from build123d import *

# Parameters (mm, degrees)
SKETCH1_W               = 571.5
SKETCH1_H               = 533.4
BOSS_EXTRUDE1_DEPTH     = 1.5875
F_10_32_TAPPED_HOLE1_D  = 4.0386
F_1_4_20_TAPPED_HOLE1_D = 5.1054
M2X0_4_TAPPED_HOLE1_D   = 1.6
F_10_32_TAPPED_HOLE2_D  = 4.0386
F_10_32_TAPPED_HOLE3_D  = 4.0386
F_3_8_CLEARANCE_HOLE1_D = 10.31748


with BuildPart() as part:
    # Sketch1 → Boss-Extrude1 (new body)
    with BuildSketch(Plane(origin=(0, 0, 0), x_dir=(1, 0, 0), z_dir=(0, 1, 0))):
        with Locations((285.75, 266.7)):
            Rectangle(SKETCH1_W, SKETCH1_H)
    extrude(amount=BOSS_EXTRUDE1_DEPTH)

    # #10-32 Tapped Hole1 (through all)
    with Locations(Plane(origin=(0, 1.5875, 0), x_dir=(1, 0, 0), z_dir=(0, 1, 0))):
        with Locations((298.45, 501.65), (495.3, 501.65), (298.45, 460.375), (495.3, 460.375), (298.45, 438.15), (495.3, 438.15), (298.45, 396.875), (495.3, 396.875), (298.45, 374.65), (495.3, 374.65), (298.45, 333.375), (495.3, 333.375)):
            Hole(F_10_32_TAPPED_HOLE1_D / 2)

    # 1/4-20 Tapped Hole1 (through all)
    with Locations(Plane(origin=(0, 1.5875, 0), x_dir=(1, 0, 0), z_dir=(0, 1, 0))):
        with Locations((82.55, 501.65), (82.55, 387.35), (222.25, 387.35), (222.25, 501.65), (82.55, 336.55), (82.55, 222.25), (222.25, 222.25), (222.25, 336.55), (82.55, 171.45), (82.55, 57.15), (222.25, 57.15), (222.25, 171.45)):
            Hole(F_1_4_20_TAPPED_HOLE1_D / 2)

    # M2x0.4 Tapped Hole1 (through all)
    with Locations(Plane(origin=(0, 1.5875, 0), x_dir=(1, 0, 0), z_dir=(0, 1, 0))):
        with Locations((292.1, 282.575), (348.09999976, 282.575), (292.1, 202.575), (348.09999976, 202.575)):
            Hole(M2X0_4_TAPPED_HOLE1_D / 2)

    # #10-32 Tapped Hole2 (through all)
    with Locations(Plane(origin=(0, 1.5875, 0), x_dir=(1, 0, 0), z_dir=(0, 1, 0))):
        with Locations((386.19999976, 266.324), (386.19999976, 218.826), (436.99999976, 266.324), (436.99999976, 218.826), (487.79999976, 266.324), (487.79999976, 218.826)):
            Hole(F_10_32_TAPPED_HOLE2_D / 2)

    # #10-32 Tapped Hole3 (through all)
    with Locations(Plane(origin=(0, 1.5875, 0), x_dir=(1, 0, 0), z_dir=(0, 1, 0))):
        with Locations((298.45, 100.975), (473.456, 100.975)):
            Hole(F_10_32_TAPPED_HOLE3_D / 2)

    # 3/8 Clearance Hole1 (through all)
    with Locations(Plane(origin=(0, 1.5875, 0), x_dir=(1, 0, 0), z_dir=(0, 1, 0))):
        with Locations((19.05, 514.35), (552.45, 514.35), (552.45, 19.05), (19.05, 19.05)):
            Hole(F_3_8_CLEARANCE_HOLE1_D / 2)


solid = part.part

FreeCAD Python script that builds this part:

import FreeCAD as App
import Part
import Sketcher

V = App.Vector
Q = App.Units.Quantity


def add_polygon(sketch, points):
    """Adds a closed chain of lines whose ends are joined by coincident constraints."""
    first, n = sketch.GeometryCount, len(points)
    for a, b in zip(points, points[1:] + points[:1]):
        sketch.addGeometry(Part.LineSegment(App.Vector(*a, 0), App.Vector(*b, 0)), False)
    for i in range(n):
        sketch.addConstraint(Sketcher.Constraint("Coincident", first + i, 2, first + (i + 1) % n, 1))

doc = App.newDocument("Part")
body = doc.addObject("PartDesign::Body", "Body")

# Sketch on XZ plane
sketch1 = doc.addObject("Sketcher::SketchObject", "Sketch")
body.addObject(sketch1)
sketch1.AttachmentSupport = (doc.XZ_Plane, [""])
sketch1.MapMode = "FlatFace"
add_polygon(sketch1, [(0, -533), (0, 0), (572, 0), (572, -533)])  # lines 0-3
sketch1.addConstraint([
    Sketcher.Constraint("Vertical", 0),
    Sketcher.Constraint("Horizontal", 1),
    Sketcher.Constraint("Vertical", 2),
    Sketcher.Constraint("Horizontal", 3),
    Sketcher.Constraint("Coincident", 0, 2, -1, 1),
    Sketcher.Constraint("DistanceY", 0, 1, 0, 2, Q("21 in")),
    Sketcher.Constraint("DistanceX", 1, 1, 1, 2, Q("22.5 in")),
])
pad1 = doc.addObject("PartDesign::Pad", "Pad")
body.addObject(pad1)
pad1.Profile = sketch1
pad1.Length = Q("0.0625 in")
pad1.Reversed = True

# Sketch on XZ plane
sketch2 = doc.addObject("Sketcher::SketchObject", "Sketch001")
body.addObject(sketch2)
sketch2.AttachmentSupport = (doc.XZ_Plane, [""])
sketch2.MapMode = "FlatFace"
sketch2.AttachmentOffset = App.Placement(V(0, 0, -0.0625 * 25.4), App.Rotation())
sketch2.addGeometry([
    Part.Circle(V(298.4, -501.6, 0), V(0, 0, 1), 2),  # 0
    Part.Circle(V(495.3, -501.6, 0), V(0, 0, 1), 2),  # 1
    Part.Circle(V(298.4, -460.4, 0), V(0, 0, 1), 2),  # 2
    Part.Circle(V(495.3, -460.4, 0), V(0, 0, 1), 2),  # 3
    Part.Circle(V(298.4, -438.1, 0), V(0, 0, 1), 2),  # 4
    Part.Circle(V(495.3, -438.1, 0), V(0, 0, 1), 2),  # 5
    Part.Circle(V(298.4, -396.9, 0), V(0, 0, 1), 2),  # 6
    Part.Circle(V(495.3, -396.9, 0), V(0, 0, 1), 2),  # 7
    Part.Circle(V(298.4, -374.6, 0), V(0, 0, 1), 2),  # 8
    Part.Circle(V(495.3, -374.6, 0), V(0, 0, 1), 2),  # 9
    Part.Circle(V(298.4, -333.4, 0), V(0, 0, 1), 2),  # 10
    Part.Circle(V(495.3, -333.4, 0), V(0, 0, 1), 2),  # 11
], False)
sketch2.addConstraint([
    Sketcher.Constraint("Equal", 0, 1),
    Sketcher.Constraint("Equal", 1, 2),
    Sketcher.Constraint("Equal", 2, 3),
    Sketcher.Constraint("Equal", 3, 4),
    Sketcher.Constraint("Equal", 4, 5),
    Sketcher.Constraint("Equal", 5, 6),
    Sketcher.Constraint("Equal", 6, 7),
    Sketcher.Constraint("Equal", 7, 8),
    Sketcher.Constraint("Equal", 8, 9),
    Sketcher.Constraint("Equal", 9, 10),
    Sketcher.Constraint("Equal", 10, 11),
    Sketcher.Constraint("Horizontal", 0, 3, 1, 3),
    Sketcher.Constraint("Horizontal", 2, 3, 3, 3),
    Sketcher.Constraint("Horizontal", 4, 3, 5, 3),
    Sketcher.Constraint("Horizontal", 6, 3, 7, 3),
    Sketcher.Constraint("Horizontal", 8, 3, 9, 3),
    Sketcher.Constraint("Horizontal", 10, 3, 11, 3),
    Sketcher.Constraint("Vertical", 0, 3, 2, 3),
    Sketcher.Constraint("Vertical", 1, 3, 3, 3),
    Sketcher.Constraint("Vertical", 2, 3, 4, 3),
    Sketcher.Constraint("Vertical", 3, 3, 5, 3),
    Sketcher.Constraint("Vertical", 4, 3, 6, 3),
    Sketcher.Constraint("Vertical", 5, 3, 7, 3),
    Sketcher.Constraint("Vertical", 6, 3, 8, 3),
    Sketcher.Constraint("Vertical", 7, 3, 9, 3),
    Sketcher.Constraint("Vertical", 8, 3, 10, 3),
    Sketcher.Constraint("Vertical", 9, 3, 11, 3),
    Sketcher.Constraint("Diameter", 0, Q("0.159 in")),
    Sketcher.Constraint("DistanceY", 0, 3, 8, 3, Q("5 in")),
    Sketcher.Constraint("DistanceY", 2, 3, 10, 3, Q("5 in")),
    Sketcher.Constraint("DistanceX", -1, 1, 1, 3, Q("19.5 in")),
    Sketcher.Constraint("DistanceY", 0, 3, 4, 3, Q("2.5 in")),
    Sketcher.Constraint("DistanceY", 2, 3, 6, 3, Q("2.5 in")),
    Sketcher.Constraint("DistanceX", -1, 1, 0, 3, Q("11.75 in")),
    Sketcher.Constraint("DistanceY", 0, 3, -1, 1, Q("19.75 in")),
    Sketcher.Constraint("DistanceY", 2, 3, -1, 1, Q("18.125 in")),
])
doc.recompute()
hole = doc.addObject("PartDesign::Hole", "Hole")
body.addObject(hole)
hole.Profile = sketch2
hole.ThreadType = "None"
hole.Diameter = Q("0.159 in")
hole.DepthType = "ThroughAll"
hole.Reversed = True

# Sketch on XZ plane
sketch3 = doc.addObject("Sketcher::SketchObject", "Sketch002")
body.addObject(sketch3)
sketch3.AttachmentSupport = (doc.XZ_Plane, [""])
sketch3.MapMode = "FlatFace"
sketch3.AttachmentOffset = App.Placement(V(0, 0, -0.0625 * 25.4), App.Rotation())
sketch3.addGeometry([
    Part.Circle(V(82.5, -501.6, 0), V(0, 0, 1), 2.6),  # 0
    Part.Circle(V(82.5, -387.4, 0), V(0, 0, 1), 2.6),  # 1
    Part.Circle(V(222.2, -387.4, 0), V(0, 0, 1), 2.6),  # 2
    Part.Circle(V(222.2, -501.6, 0), V(0, 0, 1), 2.6),  # 3
    Part.Circle(V(82.5, -336.6, 0), V(0, 0, 1), 2.6),  # 4
    Part.Circle(V(82.5, -222.2, 0), V(0, 0, 1), 2.6),  # 5
    Part.Circle(V(222.2, -222.2, 0), V(0, 0, 1), 2.6),  # 6
    Part.Circle(V(222.2, -336.6, 0), V(0, 0, 1), 2.6),  # 7
    Part.Circle(V(82.5, -171.4, 0), V(0, 0, 1), 2.6),  # 8
    Part.Circle(V(82.5, -57.1, 0), V(0, 0, 1), 2.6),  # 9
    Part.Circle(V(222.2, -57.1, 0), V(0, 0, 1), 2.6),  # 10
    Part.Circle(V(222.2, -171.4, 0), V(0, 0, 1), 2.6),  # 11
], False)
sketch3.addConstraint([
    Sketcher.Constraint("Equal", 0, 1),
    Sketcher.Constraint("Equal", 1, 2),
    Sketcher.Constraint("Equal", 2, 3),
    Sketcher.Constraint("Equal", 3, 4),
    Sketcher.Constraint("Equal", 4, 5),
    Sketcher.Constraint("Equal", 5, 6),
    Sketcher.Constraint("Equal", 6, 7),
    Sketcher.Constraint("Equal", 7, 8),
    Sketcher.Constraint("Equal", 8, 9),
    Sketcher.Constraint("Equal", 9, 10),
    Sketcher.Constraint("Equal", 10, 11),
    Sketcher.Constraint("Horizontal", 1, 3, 2, 3),
    Sketcher.Constraint("Horizontal", 0, 3, 3, 3),
    Sketcher.Constraint("Horizontal", 5, 3, 6, 3),
    Sketcher.Constraint("Horizontal", 4, 3, 7, 3),
    Sketcher.Constraint("Horizontal", 9, 3, 10, 3),
    Sketcher.Constraint("Horizontal", 8, 3, 11, 3),
    Sketcher.Constraint("Vertical", 0, 3, 1, 3),
    Sketcher.Constraint("Vertical", 2, 3, 3, 3),
    Sketcher.Constraint("Vertical", 1, 3, 4, 3),
    Sketcher.Constraint("Vertical", 4, 3, 5, 3),
    Sketcher.Constraint("Vertical", 3, 3, 6, 3),
    Sketcher.Constraint("Vertical", 6, 3, 7, 3),
    Sketcher.Constraint("Vertical", 5, 3, 8, 3),
    Sketcher.Constraint("Vertical", 8, 3, 9, 3),
    Sketcher.Constraint("Vertical", 7, 3, 10, 3),
    Sketcher.Constraint("Vertical", 10, 3, 11, 3),
    Sketcher.Constraint("Diameter", 0, Q("0.201 in")),
    Sketcher.Constraint("DistanceY", 1, 3, 4, 3, Q("2 in")),
    Sketcher.Constraint("DistanceY", 0, 3, 5, 3, Q("11 in")),
    Sketcher.Constraint("DistanceY", 5, 3, 8, 3, Q("2 in")),
    Sketcher.Constraint("DistanceY", 4, 3, 9, 3, Q("11 in")),
    Sketcher.Constraint("DistanceY", 0, 3, 1, 3, Q("4.5 in")),
    Sketcher.Constraint("DistanceX", 1, 3, 2, 3, Q("5.5 in")),
    Sketcher.Constraint("DistanceX", -1, 1, 0, 3, Q("3.25 in")),
    Sketcher.Constraint("DistanceY", 0, 3, -1, 1, Q("19.75 in")),
])
doc.recompute()
hole2 = doc.addObject("PartDesign::Hole", "Hole001")
body.addObject(hole2)
hole2.Profile = sketch3
hole2.ThreadType = "None"
hole2.Diameter = Q("0.201 in")
hole2.DepthType = "ThroughAll"
hole2.Reversed = True

# Sketch on XZ plane
sketch4 = doc.addObject("Sketcher::SketchObject", "Sketch003")
body.addObject(sketch4)
sketch4.AttachmentSupport = (doc.XZ_Plane, [""])
sketch4.MapMode = "FlatFace"
sketch4.AttachmentOffset = App.Placement(V(0, 0, -0.0625 * 25.4), App.Rotation())
sketch4.addGeometry([
    Part.Circle(V(292.1, -282.6, 0), V(0, 0, 1), 0.8),
    Part.Circle(V(348.1, -282.6, 0), V(0, 0, 1), 0.8),
    Part.Circle(V(292.1, -202.6, 0), V(0, 0, 1), 0.8),
    Part.Circle(V(348.1, -202.6, 0), V(0, 0, 1), 0.8),
], False)
sketch4.addConstraint([
    Sketcher.Constraint("Equal", 0, 1),
    Sketcher.Constraint("Equal", 1, 2),
    Sketcher.Constraint("Equal", 2, 3),
    Sketcher.Constraint("Horizontal", 0, 3, 1, 3),
    Sketcher.Constraint("Horizontal", 2, 3, 3, 3),
    Sketcher.Constraint("Vertical", 0, 3, 2, 3),
    Sketcher.Constraint("Vertical", 1, 3, 3, 3),
    Sketcher.Constraint("DistanceX", -1, 1, 0, 3, Q("11.5 in")),
    Sketcher.Constraint("Diameter", 0, 1.6),
    Sketcher.Constraint("DistanceY", 0, 3, -1, 1, Q("11.125 in")),
    Sketcher.Constraint("DistanceX", -1, 1, 1, 3, 348.1),
    Sketcher.Constraint("DistanceY", 2, 3, -1, 1, 202.575),
])
doc.recompute()
hole3 = doc.addObject("PartDesign::Hole", "Hole002")
body.addObject(hole3)
hole3.Profile = sketch4
hole3.ThreadType = "None"
hole3.Diameter = 1.6
hole3.DepthType = "ThroughAll"
hole3.Reversed = True

# Sketch on XZ plane
sketch5 = doc.addObject("Sketcher::SketchObject", "Sketch004")
body.addObject(sketch5)
sketch5.AttachmentSupport = (doc.XZ_Plane, [""])
sketch5.MapMode = "FlatFace"
sketch5.AttachmentOffset = App.Placement(V(0, 0, -0.0625 * 25.4), App.Rotation())
sketch5.addGeometry([
    Part.Circle(V(386.2, -266.3, 0), V(0, 0, 1), 2),  # 0
    Part.Circle(V(386.2, -218.8, 0), V(0, 0, 1), 2),  # 1
    Part.Circle(V(437, -266.3, 0), V(0, 0, 1), 2),  # 2
    Part.Circle(V(437, -218.8, 0), V(0, 0, 1), 2),  # 3
    Part.Circle(V(487.8, -266.3, 0), V(0, 0, 1), 2),  # 4
    Part.Circle(V(487.8, -218.8, 0), V(0, 0, 1), 2),  # 5
], False)
sketch5.addConstraint([
    Sketcher.Constraint("Equal", 0, 1),
    Sketcher.Constraint("Equal", 1, 2),
    Sketcher.Constraint("Equal", 2, 3),
    Sketcher.Constraint("Equal", 3, 4),
    Sketcher.Constraint("Equal", 4, 5),
    Sketcher.Constraint("Horizontal", 0, 3, 2, 3),
    Sketcher.Constraint("Horizontal", 1, 3, 3, 3),
    Sketcher.Constraint("Horizontal", 2, 3, 4, 3),
    Sketcher.Constraint("Horizontal", 3, 3, 5, 3),
    Sketcher.Constraint("Vertical", 0, 3, 1, 3),
    Sketcher.Constraint("Vertical", 2, 3, 3, 3),
    Sketcher.Constraint("Vertical", 4, 3, 5, 3),
    Sketcher.Constraint("Diameter", 0, Q("0.159 in")),
    Sketcher.Constraint("DistanceX", 0, 3, 2, 3, Q("2 in")),
    Sketcher.Constraint("DistanceX", 2, 3, 4, 3, Q("2 in")),
    Sketcher.Constraint("DistanceY", 0, 3, 1, 3, Q("1.87 in")),
    Sketcher.Constraint("DistanceX", -1, 1, 0, 3, 386.2),
    Sketcher.Constraint("DistanceY", 0, 3, -1, 1, 266.324),
])
doc.recompute()
hole4 = doc.addObject("PartDesign::Hole", "Hole003")
body.addObject(hole4)
hole4.Profile = sketch5
hole4.ThreadType = "None"
hole4.Diameter = Q("0.159 in")
hole4.DepthType = "ThroughAll"
hole4.Reversed = True

# Sketch on XZ plane
sketch6 = doc.addObject("Sketcher::SketchObject", "Sketch005")
body.addObject(sketch6)
sketch6.AttachmentSupport = (doc.XZ_Plane, [""])
sketch6.MapMode = "FlatFace"
sketch6.AttachmentOffset = App.Placement(V(0, 0, -0.0625 * 25.4), App.Rotation())
sketch6.addGeometry([
    Part.Circle(V(298.4, -101, 0), V(0, 0, 1), 2),
    Part.Circle(V(473.5, -101, 0), V(0, 0, 1), 2),
], False)
sketch6.addConstraint([
    Sketcher.Constraint("Equal", 0, 1),
    Sketcher.Constraint("Horizontal", 0, 3, 1, 3),
    Sketcher.Constraint("Diameter", 0, Q("0.159 in")),
    Sketcher.Constraint("DistanceX", -1, 1, 0, 3, Q("11.75 in")),
    Sketcher.Constraint("DistanceX", -1, 1, 1, 3, Q("18.64 in")),
    Sketcher.Constraint("DistanceY", 0, 3, -1, 1, 100.975),
])
doc.recompute()
hole5 = doc.addObject("PartDesign::Hole", "Hole004")
body.addObject(hole5)
hole5.Profile = sketch6
hole5.ThreadType = "None"
hole5.Diameter = Q("0.159 in")
hole5.DepthType = "ThroughAll"
hole5.Reversed = True

# Sketch on XZ plane
sketch7 = doc.addObject("Sketcher::SketchObject", "Sketch006")
body.addObject(sketch7)
sketch7.AttachmentSupport = (doc.XZ_Plane, [""])
sketch7.MapMode = "FlatFace"
sketch7.AttachmentOffset = App.Placement(V(0, 0, -0.0625 * 25.4), App.Rotation())
sketch7.addGeometry([
    Part.Circle(V(19, -514, 0), V(0, 0, 1), 5),
    Part.Circle(V(552, -514, 0), V(0, 0, 1), 5),
    Part.Circle(V(552, -19, 0), V(0, 0, 1), 5),
    Part.Circle(V(19, -19, 0), V(0, 0, 1), 5),
], False)
sketch7.addConstraint([
    Sketcher.Constraint("Equal", 0, 1),
    Sketcher.Constraint("Equal", 1, 2),
    Sketcher.Constraint("Equal", 2, 3),
    Sketcher.Constraint("Horizontal", 0, 3, 1, 3),
    Sketcher.Constraint("Horizontal", 2, 3, 3, 3),
    Sketcher.Constraint("Vertical", 1, 3, 2, 3),
    Sketcher.Constraint("Vertical", 0, 3, 3, 3),
    Sketcher.Constraint("DistanceX", 0, 3, 1, 3, Q("21 in")),
    Sketcher.Constraint("Diameter", 0, Q("0.4062 in")),
    Sketcher.Constraint("DistanceY", 1, 3, 2, 3, Q("19.5 in")),
    Sketcher.Constraint("DistanceX", -1, 1, 0, 3, Q("0.75 in")),
    Sketcher.Constraint("DistanceY", 0, 3, -1, 1, Q("20.25 in")),
])
doc.recompute()
hole6 = doc.addObject("PartDesign::Hole", "Hole005")
body.addObject(hole6)
hole6.Profile = sketch7
hole6.ThreadType = "None"
hole6.Diameter = Q("0.4062 in")
hole6.DepthType = "ThroughAll"
hole6.Reversed = True

doc.recompute()
